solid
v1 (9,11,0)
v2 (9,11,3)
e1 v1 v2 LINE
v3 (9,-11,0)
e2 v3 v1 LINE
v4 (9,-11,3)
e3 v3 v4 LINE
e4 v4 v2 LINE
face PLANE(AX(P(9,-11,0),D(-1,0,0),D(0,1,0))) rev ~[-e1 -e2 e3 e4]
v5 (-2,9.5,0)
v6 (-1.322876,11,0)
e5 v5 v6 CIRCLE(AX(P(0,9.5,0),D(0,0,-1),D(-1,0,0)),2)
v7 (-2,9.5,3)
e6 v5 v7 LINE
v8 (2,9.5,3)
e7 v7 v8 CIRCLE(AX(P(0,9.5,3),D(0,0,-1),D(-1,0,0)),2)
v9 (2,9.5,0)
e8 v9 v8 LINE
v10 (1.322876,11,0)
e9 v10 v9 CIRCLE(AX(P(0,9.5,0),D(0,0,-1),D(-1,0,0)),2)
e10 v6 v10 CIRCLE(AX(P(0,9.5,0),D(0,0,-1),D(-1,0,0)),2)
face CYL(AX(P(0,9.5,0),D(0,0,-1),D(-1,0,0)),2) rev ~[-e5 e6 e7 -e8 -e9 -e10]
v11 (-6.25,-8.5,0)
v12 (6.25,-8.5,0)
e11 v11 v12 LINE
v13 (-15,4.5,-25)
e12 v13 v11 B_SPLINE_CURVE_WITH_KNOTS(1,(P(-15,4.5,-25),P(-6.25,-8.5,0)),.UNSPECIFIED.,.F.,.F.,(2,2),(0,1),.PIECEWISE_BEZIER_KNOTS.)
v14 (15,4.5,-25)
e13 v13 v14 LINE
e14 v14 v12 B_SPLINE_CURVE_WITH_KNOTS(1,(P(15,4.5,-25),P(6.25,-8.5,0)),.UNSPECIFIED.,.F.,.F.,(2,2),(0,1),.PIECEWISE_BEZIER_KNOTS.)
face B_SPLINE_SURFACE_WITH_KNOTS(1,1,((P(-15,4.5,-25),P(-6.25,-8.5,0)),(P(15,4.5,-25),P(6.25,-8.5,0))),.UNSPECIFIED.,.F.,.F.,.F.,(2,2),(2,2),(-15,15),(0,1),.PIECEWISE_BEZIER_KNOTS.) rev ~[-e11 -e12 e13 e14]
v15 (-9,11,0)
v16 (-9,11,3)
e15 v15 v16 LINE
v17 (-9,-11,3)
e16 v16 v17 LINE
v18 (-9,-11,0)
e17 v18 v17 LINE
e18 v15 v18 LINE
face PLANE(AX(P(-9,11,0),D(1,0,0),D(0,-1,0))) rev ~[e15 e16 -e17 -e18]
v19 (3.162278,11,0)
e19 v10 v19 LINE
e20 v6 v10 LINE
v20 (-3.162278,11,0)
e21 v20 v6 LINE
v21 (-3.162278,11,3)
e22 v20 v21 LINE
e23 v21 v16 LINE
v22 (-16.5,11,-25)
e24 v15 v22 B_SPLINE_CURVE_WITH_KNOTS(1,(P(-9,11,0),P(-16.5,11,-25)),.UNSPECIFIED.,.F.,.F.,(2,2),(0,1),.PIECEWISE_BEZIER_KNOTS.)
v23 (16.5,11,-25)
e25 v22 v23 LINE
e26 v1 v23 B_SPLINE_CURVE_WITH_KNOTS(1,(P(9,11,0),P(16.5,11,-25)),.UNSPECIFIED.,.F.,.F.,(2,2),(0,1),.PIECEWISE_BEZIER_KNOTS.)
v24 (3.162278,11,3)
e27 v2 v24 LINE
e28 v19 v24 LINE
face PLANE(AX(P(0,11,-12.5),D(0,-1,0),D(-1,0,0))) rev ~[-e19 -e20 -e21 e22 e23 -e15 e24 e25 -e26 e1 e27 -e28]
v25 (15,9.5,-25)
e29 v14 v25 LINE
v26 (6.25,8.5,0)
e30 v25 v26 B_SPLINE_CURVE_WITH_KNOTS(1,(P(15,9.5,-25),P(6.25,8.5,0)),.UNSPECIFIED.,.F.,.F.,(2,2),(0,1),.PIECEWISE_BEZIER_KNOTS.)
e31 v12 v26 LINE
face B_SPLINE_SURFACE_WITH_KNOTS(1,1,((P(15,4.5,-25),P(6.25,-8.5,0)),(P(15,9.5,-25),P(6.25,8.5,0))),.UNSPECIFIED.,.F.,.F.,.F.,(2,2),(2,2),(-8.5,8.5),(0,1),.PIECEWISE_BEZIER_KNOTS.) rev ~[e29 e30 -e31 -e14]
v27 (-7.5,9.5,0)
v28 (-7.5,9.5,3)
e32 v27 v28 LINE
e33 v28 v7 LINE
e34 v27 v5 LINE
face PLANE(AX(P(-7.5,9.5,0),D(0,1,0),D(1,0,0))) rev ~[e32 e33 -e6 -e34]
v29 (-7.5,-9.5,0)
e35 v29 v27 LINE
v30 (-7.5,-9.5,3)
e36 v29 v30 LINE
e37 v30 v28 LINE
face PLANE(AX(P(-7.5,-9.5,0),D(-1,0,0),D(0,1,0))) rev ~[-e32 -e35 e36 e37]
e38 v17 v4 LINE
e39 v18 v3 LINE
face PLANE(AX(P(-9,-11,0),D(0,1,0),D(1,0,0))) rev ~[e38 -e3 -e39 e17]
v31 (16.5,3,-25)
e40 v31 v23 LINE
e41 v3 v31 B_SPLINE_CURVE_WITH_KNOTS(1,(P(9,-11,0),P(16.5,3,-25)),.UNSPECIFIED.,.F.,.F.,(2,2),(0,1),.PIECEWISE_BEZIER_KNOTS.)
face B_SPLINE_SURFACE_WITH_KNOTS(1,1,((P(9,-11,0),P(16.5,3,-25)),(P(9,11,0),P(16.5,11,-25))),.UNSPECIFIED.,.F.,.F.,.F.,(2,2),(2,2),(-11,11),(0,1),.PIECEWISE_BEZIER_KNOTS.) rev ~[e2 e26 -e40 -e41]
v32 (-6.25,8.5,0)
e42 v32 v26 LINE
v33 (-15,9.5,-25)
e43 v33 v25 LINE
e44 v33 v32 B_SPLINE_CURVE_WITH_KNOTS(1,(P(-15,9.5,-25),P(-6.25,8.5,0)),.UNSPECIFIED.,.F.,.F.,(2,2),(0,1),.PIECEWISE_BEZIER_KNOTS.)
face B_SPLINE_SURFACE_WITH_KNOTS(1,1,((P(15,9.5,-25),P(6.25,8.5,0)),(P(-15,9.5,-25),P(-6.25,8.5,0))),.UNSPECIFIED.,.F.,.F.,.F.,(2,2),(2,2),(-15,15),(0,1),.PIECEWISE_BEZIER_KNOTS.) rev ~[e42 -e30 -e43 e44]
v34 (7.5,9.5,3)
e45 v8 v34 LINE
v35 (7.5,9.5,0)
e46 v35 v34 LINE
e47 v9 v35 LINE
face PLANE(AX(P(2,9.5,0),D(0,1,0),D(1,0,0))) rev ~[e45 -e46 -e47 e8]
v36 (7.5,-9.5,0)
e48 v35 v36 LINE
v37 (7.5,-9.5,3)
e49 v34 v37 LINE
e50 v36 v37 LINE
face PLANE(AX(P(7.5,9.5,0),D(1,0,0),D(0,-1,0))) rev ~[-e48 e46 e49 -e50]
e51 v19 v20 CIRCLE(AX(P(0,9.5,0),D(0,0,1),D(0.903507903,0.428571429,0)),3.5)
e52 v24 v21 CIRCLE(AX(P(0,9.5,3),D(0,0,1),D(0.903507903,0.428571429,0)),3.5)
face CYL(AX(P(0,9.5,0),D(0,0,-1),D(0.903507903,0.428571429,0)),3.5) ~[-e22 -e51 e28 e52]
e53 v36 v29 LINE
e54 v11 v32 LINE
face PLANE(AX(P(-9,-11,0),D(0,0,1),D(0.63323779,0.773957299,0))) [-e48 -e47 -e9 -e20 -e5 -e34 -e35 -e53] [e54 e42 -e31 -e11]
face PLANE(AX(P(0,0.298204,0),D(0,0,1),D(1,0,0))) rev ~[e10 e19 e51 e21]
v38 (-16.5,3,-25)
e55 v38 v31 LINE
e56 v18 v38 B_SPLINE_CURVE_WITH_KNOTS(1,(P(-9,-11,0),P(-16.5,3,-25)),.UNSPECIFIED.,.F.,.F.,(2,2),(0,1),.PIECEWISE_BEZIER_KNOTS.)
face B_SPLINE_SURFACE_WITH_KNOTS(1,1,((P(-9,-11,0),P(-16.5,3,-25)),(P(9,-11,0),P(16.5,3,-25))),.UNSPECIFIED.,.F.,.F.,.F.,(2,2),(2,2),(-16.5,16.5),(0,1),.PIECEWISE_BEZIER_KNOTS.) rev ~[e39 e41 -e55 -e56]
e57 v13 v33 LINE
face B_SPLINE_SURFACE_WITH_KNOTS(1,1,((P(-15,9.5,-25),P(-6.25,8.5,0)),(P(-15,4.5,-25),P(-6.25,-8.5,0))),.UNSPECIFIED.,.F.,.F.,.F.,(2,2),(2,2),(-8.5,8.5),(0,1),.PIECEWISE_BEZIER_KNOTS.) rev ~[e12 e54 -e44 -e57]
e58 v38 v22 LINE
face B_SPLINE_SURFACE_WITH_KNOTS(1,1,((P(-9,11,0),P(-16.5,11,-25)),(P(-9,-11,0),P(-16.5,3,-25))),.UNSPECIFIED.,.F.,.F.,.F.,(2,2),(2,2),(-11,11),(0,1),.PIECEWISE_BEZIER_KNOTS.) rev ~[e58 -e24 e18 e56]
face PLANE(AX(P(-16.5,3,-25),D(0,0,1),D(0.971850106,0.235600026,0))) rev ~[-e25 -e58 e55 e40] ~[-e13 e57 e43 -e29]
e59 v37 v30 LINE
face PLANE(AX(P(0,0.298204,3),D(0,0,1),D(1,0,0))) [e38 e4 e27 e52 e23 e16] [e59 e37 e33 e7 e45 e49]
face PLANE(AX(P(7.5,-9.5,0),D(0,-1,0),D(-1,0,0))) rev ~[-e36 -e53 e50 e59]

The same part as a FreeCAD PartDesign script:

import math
import FreeCAD as App
import Part
import Sketcher

V = App.Vector

doc = App.newDocument("Part")
body = doc.addObject("PartDesign::Body", "Body")

sketch1 = body.newObject("Sketcher::SketchObject", "Sketch")
sketch1.AttachmentSupport = (doc.getObject("XY_Plane"), [""])
sketch1.MapMode = "FlatFace"
sketch1.addGeometry([
    Part.LineSegment(V(-9, -11, 0), V(9, -11, 0)),
    Part.LineSegment(V(9, -11, 0), V(9, 11, 0)),
    Part.LineSegment(V(9, 11, 0), V(3.162278, 11, 0)),
    Part.ArcOfCircle(Part.Circle(V(0, 9.5, 0), V(0, 0, 1), 3.5), math.radians(25.376934), math.radians(154.623066)),
    Part.LineSegment(V(-3.162278, 11, 0), V(-9, 11, 0)),
    Part.LineSegment(V(-9, 11, 0), V(-9, -11, 0)),
    Part.LineSegment(V(2, 9.5, 0), V(7.5, 9.5, 0)),
    Part.LineSegment(V(7.5, 9.5, 0), V(7.5, -9.5, 0)),
    Part.LineSegment(V(7.5, -9.5, 0), V(-7.5, -9.5, 0)),
    Part.LineSegment(V(-7.5, -9.5, 0), V(-7.5, 9.5, 0)),
    Part.LineSegment(V(-7.5, 9.5, 0), V(-2, 9.5, 0)),
    Part.ArcOfCircle(Part.Circle(V(0, 9.5, 0), V(0, 0, 1), 2), math.radians(0), math.radians(180)),
], False)
sketch1.addConstraint([
    Sketcher.Constraint("Coincident", 0, 2, 1, 1),
    Sketcher.Constraint("Coincident", 1, 2, 2, 1),
    Sketcher.Constraint("Coincident", 2, 2, 3, 1),
    Sketcher.Constraint("Coincident", 3, 2, 4, 1),
    Sketcher.Constraint("Coincident", 4, 2, 5, 1),
    Sketcher.Constraint("Coincident", 5, 2, 0, 1),
    Sketcher.Constraint("Coincident", 6, 2, 7, 1),
    Sketcher.Constraint("Coincident", 7, 2, 8, 1),
    Sketcher.Constraint("Coincident", 8, 2, 9, 1),
    Sketcher.Constraint("Coincident", 9, 2, 10, 1),
    Sketcher.Constraint("Coincident", 10, 2, 11, 2),
    Sketcher.Constraint("Coincident", 11, 1, 6, 1),
    Sketcher.Constraint("Horizontal", 0),
    Sketcher.Constraint("Vertical", 1),
    Sketcher.Constraint("Horizontal", 2),
    Sketcher.Constraint("Horizontal", 4),
    Sketcher.Constraint("Vertical", 5),
    Sketcher.Constraint("Horizontal", 6),
    Sketcher.Constraint("Vertical", 7),
    Sketcher.Constraint("Horizontal", 8),
    Sketcher.Constraint("Vertical", 9),
    Sketcher.Constraint("Horizontal", 10),
    Sketcher.Constraint("Coincident", 11, 3, 3, 3),
    Sketcher.Constraint("Symmetric", 0, 2, 4, 2, -1, 1),
    Sketcher.Constraint("Symmetric", 6, 2, 8, 2, -1, 1),
    Sketcher.Constraint("Symmetric", 2, 2, 3, 2, -2),
    Sketcher.Constraint("Horizontal", 11, 3, 6, 2),
    Sketcher.Constraint("Horizontal", 6, 2, 9, 2),
    Sketcher.Constraint("Radius", 11, 2.0),
    Sketcher.Constraint("Radius", 3, 3.5),
    Sketcher.Constraint("DistanceX", 0, 1, 0, 2, 18.0),
    Sketcher.Constraint("DistanceX", 8, 2, 8, 1, 15.0),
    Sketcher.Constraint("DistanceY", 1, 1, 1, 2, 22.0),
    Sketcher.Constraint("DistanceY", 7, 2, 7, 1, 19.0),
])
pad1 = body.newObject("PartDesign::Pad", "Pad")
pad1.Profile = sketch1
pad1.Length = 3

sketch2 = body.newObject("Sketcher::SketchObject", "Sketch001")
sketch2.AttachmentSupport = (doc.getObject("XY_Plane"), [""])
sketch2.MapMode = "FlatFace"
sketch2.addGeometry([
    Part.LineSegment(V(-9, 11, 0), V(-9, -11, 0)),
    Part.LineSegment(V(-9, -11, 0), V(9, -11, 0)),
    Part.LineSegment(V(9, -11, 0), V(9, 11, 0)),
    Part.LineSegment(V(9, 11, 0), V(-9, 11, 0)),
], False)
sketch2.addConstraint([
    Sketcher.Constraint("Coincident", 0, 2, 1, 1),
    Sketcher.Constraint("Coincident", 1, 2, 2, 1),
    Sketcher.Constraint("Coincident", 2, 2, 3, 1),
    Sketcher.Constraint("Coincident", 3, 2, 0, 1),
    Sketcher.Constraint("Vertical", 0),
    Sketcher.Constraint("Horizontal", 1),
    Sketcher.Constraint("Vertical", 2),
    Sketcher.Constraint("Horizontal", 3),
    Sketcher.Constraint("Symmetric", 0, 2, 2, 2, -1, 1),
    Sketcher.Constraint("DistanceX", 1, 1, 1, 2, 18.0),
    Sketcher.Constraint("DistanceY", 0, 2, 0, 1, 22.0),
])

sketch3 = body.newObject("Sketcher::SketchObject", "Sketch002")
sketch3.AttachmentSupport = (doc.getObject("XY_Plane"), [""])
sketch3.MapMode = "FlatFace"
sketch3.AttachmentOffset = App.Placement(V(0, 0, -25), App.Rotation())
sketch3.addGeometry([
    Part.LineSegment(V(-16.5, 11, 0), V(-16.5, 3, 0)),
    Part.LineSegment(V(-16.5, 3, 0), V(16.5, 3, 0)),
    Part.LineSegment(V(16.5, 3, 0), V(16.5, 11, 0)),
    Part.LineSegment(V(16.5, 11, 0), V(-16.5, 11, 0)),
], False)
sketch3.addConstraint([
    Sketcher.Constraint("Coincident", 0, 2, 1, 1),
    Sketcher.Constraint("Coincident", 1, 2, 2, 1),
    Sketcher.Constraint("Coincident", 2, 2, 3, 1),
    Sketcher.Constraint("Coincident", 3, 2, 0, 1),
    Sketcher.Constraint("Vertical", 0),
    Sketcher.Constraint("Horizontal", 1),
    Sketcher.Constraint("Vertical", 2),
    Sketcher.Constraint("Horizontal", 3),
    Sketcher.Constraint("DistanceX", 1, 1, 1, 2, 33.0),
    Sketcher.Constraint("DistanceY", 0, 2, 0, 1, 8.0),
    Sketcher.Constraint("DistanceY", -1, 1, 0, 2, 3.0),
    Sketcher.Constraint("DistanceX", 0, 2, -1, 1, 16.5),
])

additiveloft = body.newObject("PartDesign::AdditiveLoft", "AdditiveLoft")
additiveloft.Profile = sketch2
additiveloft.Sections = [sketch3]

sketch4 = body.newObject("Sketcher::SketchObject", "Sketch003")
sketch4.AttachmentSupport = (doc.getObject("XY_Plane"), [""])
sketch4.MapMode = "FlatFace"
sketch4.AttachmentOffset = App.Placement(V(0, 0, -25), App.Rotation())
sketch4.addGeometry([
    Part.LineSegment(V(-15, 9.5, 0), V(-15, 4.5, 0)),
    Part.LineSegment(V(-15, 4.5, 0), V(15, 4.5, 0)),
    Part.LineSegment(V(15, 4.5, 0), V(15, 9.5, 0)),
    Part.LineSegment(V(15, 9.5, 0), V(-15, 9.5, 0)),
], False)
sketch4.addConstraint([
    Sketcher.Constraint("Coincident", 0, 2, 1, 1),
    Sketcher.Constraint("Coincident", 1, 2, 2, 1),
    Sketcher.Constraint("Coincident", 2, 2, 3, 1),
    Sketcher.Constraint("Coincident", 3, 2, 0, 1),
    Sketcher.Constraint("Vertical", 0),
    Sketcher.Constraint("Horizontal", 1),
    Sketcher.Constraint("Vertical", 2),
    Sketcher.Constraint("Horizontal", 3),
    Sketcher.Constraint("DistanceX", 1, 1, 1, 2, 30.0),
    Sketcher.Constraint("DistanceY", 0, 2, 0, 1, 5.0),
    Sketcher.Constraint("DistanceX", 0, 2, -1, 1, 15.0),
    Sketcher.Constraint("DistanceY", -1, 1, 0, 2, 4.5),
])

sketch5 = body.newObject("Sketcher::SketchObject", "Sketch004")
sketch5.AttachmentSupport = (doc.getObject("XY_Plane"), [""])
sketch5.MapMode = "FlatFace"
sketch5.addGeometry([
    Part.LineSegment(V(-6.25, 8.5, 0), V(-6.25, -8.5, 0)),
    Part.LineSegment(V(-6.25, -8.5, 0), V(6.25, -8.5, 0)),
    Part.LineSegment(V(6.25, -8.5, 0), V(6.25, 8.5, 0)),
    Part.LineSegment(V(6.25, 8.5, 0), V(-6.25, 8.5, 0)),
], False)
sketch5.addConstraint([
    Sketcher.Constraint("Coincident", 0, 2, 1, 1),
    Sketcher.Constraint("Coincident", 1, 2, 2, 1),
    Sketcher.Constraint("Coincident", 2, 2, 3, 1),
    Sketcher.Constraint("Coincident", 3, 2, 0, 1),
    Sketcher.Constraint("Vertical", 0),
    Sketcher.Constraint("Horizontal", 1),
    Sketcher.Constraint("Vertical", 2),
    Sketcher.Constraint("Horizontal", 3),
    Sketcher.Constraint("Symmetric", 0, 2, 2, 2, -1, 1),
    Sketcher.Constraint("DistanceY", 0, 2, 0, 1, 17.0),
    Sketcher.Constraint("DistanceX", 1, 1, 1, 2, 12.5),
])

subtractiveloft = body.newObject("PartDesign::SubtractiveLoft", "SubtractiveLoft")
subtractiveloft.Profile = sketch4
subtractiveloft.Sections = [sketch5]

doc.recompute()
